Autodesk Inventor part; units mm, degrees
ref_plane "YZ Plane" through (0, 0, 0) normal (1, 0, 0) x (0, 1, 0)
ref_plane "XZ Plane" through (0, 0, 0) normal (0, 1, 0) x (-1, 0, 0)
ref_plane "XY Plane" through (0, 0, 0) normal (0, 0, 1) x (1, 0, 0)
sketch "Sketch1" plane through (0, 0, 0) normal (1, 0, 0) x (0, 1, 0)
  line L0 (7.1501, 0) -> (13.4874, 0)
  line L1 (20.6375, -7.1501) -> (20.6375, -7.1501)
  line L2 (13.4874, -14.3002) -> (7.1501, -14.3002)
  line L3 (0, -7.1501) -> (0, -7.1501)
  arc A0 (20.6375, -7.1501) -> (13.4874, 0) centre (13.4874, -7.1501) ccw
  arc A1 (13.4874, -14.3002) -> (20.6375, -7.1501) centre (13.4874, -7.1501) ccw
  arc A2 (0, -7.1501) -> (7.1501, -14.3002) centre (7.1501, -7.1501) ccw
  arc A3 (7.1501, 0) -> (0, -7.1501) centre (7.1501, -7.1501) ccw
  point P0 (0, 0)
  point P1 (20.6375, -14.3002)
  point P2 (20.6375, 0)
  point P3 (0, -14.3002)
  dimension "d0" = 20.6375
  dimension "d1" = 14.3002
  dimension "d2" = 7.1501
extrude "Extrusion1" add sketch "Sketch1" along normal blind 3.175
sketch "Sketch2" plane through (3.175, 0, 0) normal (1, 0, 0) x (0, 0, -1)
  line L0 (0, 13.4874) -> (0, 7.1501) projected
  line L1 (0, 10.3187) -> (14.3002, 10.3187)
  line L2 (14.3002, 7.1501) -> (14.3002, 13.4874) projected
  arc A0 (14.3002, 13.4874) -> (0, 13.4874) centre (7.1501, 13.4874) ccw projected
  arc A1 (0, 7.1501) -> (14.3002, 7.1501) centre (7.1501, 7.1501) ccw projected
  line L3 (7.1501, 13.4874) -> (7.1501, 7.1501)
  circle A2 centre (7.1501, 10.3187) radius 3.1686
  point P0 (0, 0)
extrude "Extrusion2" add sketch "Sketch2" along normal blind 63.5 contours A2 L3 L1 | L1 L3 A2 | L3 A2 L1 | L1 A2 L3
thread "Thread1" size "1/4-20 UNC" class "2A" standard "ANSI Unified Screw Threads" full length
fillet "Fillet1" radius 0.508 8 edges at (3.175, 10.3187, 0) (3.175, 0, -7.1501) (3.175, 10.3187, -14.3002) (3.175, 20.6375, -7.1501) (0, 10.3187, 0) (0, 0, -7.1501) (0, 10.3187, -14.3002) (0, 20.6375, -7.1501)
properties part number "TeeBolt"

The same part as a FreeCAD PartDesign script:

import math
import FreeCAD as App
import Part
import Sketcher
from FreeCAD import Vector
Q = App.Units.Quantity


def edges_at(feature, points):
    """Names of the edges that pass closest to the given points."""
    edges = feature.Shape.Edges
    near = lambda p: min(range(len(edges)), key=lambda i: edges[i].distToShape(Part.Vertex(*p))[0])
    return sorted({f"Edge{near(p) + 1}" for p in points})

doc = App.newDocument("Part")
params = doc.addObject("Spreadsheet::Sheet", "Params")
for row, (alias, value) in enumerate([
    ("pad1_length", "0.125 in"),
    ("pad2_length", "2.5 in"),
    ("fillet_radius", "0.02 in"),
], start=1):
    params.set(f"A{row}", alias)
    params.set(f"B{row}", "=" + value)
    params.setAlias(f"B{row}", alias)

body = doc.addObject("PartDesign::Body", "Body")

# Sketch on YZ plane
sketch1 = body.newObject("Sketcher::SketchObject", "Sketch")
sketch1.AttachmentSupport = (doc.getObject("YZ_Plane"), [""])
sketch1.MapMode = "FlatFace"
sketch1.addGeometry([
    Part.LineSegment(Vector(13, 0, 0), Vector(7, 0, 0)),
    Part.ArcOfCircle(Part.Circle(Vector(7, -7, 0), Vector(0, 0, 1), 7), math.radians(90), math.radians(270)),
    Part.LineSegment(Vector(7, -14, 0), Vector(13, -14, 0)),
    Part.ArcOfCircle(Part.Circle(Vector(13, -7, 0), Vector(0, 0, 1), 7), math.radians(-90), math.radians(90)),
], False)
sketch1.addConstraint([
    Sketcher.Constraint("Tangent", 0, 2, 1, 1),
    Sketcher.Constraint("Tangent", 1, 2, 2, 1),
    Sketcher.Constraint("Tangent", 2, 2, 3, 1),
    Sketcher.Constraint("Tangent", 3, 2, 0, 1),
    Sketcher.Constraint("Horizontal", 0),
    Sketcher.Constraint("Horizontal", 2),
    Sketcher.Constraint("PointOnObject", 0, 2, -1),
    Sketcher.Constraint("Radius", 1, Q("0.2815 in")),
    Sketcher.Constraint("DistanceX", -1, 1, 1, 3, Q("0.2815 in")),
    Sketcher.Constraint("DistanceX", 0, 2, 0, 1, Q("0.2495 in")),
])
pad1 = body.newObject("PartDesign::Pad", "Pad")
pad1.Profile = sketch1
pad1.setExpression("Length", "Params.pad1_length")

# Sketch on YZ plane
sketch2 = body.newObject("Sketcher::SketchObject", "Sketch001")
sketch2.AttachmentSupport = (doc.getObject("YZ_Plane"), [""])
sketch2.MapMode = "FlatFace"
sketch2.AttachmentOffset = App.Placement(Vector(0, 0, 0.125 * 25.4), App.Rotation())
sketch2.addGeometry(Part.Circle(Vector(10.3, -7.2, 0), Vector(0, 0, 1), 3.2), False)
sketch2.addConstraint([
    Sketcher.Constraint("Diameter", 0, Q("0.2495 in")),
    Sketcher.Constraint("DistanceX", -1, 1, 0, 3, Q("0.406248 in")),
    Sketcher.Constraint("DistanceY", 0, 3, -1, 1, Q("0.2815 in")),
])
pad2 = body.newObject("PartDesign::Pad", "Pad001")
pad2.Profile = sketch2
pad2.setExpression("Length", "Params.pad2_length")
doc.recompute()

fillet = body.newObject("PartDesign::Fillet", "Fillet")
fillet.Base = (pad2, edges_at(pad2, [
    (3.175, 10.319, 0),
    (3.175, 0, -7.15),
    (3.175, 10.319, -14.3),
    (3.175, 20.637, -7.15),
    (0, 10.319, 0),
    (0, 0, -7.15),
    (0, 10.319, -14.3),
    (0, 20.637, -7.15),
]))
fillet.setExpression("Radius", "Params.fillet_radius")

doc.recompute()
